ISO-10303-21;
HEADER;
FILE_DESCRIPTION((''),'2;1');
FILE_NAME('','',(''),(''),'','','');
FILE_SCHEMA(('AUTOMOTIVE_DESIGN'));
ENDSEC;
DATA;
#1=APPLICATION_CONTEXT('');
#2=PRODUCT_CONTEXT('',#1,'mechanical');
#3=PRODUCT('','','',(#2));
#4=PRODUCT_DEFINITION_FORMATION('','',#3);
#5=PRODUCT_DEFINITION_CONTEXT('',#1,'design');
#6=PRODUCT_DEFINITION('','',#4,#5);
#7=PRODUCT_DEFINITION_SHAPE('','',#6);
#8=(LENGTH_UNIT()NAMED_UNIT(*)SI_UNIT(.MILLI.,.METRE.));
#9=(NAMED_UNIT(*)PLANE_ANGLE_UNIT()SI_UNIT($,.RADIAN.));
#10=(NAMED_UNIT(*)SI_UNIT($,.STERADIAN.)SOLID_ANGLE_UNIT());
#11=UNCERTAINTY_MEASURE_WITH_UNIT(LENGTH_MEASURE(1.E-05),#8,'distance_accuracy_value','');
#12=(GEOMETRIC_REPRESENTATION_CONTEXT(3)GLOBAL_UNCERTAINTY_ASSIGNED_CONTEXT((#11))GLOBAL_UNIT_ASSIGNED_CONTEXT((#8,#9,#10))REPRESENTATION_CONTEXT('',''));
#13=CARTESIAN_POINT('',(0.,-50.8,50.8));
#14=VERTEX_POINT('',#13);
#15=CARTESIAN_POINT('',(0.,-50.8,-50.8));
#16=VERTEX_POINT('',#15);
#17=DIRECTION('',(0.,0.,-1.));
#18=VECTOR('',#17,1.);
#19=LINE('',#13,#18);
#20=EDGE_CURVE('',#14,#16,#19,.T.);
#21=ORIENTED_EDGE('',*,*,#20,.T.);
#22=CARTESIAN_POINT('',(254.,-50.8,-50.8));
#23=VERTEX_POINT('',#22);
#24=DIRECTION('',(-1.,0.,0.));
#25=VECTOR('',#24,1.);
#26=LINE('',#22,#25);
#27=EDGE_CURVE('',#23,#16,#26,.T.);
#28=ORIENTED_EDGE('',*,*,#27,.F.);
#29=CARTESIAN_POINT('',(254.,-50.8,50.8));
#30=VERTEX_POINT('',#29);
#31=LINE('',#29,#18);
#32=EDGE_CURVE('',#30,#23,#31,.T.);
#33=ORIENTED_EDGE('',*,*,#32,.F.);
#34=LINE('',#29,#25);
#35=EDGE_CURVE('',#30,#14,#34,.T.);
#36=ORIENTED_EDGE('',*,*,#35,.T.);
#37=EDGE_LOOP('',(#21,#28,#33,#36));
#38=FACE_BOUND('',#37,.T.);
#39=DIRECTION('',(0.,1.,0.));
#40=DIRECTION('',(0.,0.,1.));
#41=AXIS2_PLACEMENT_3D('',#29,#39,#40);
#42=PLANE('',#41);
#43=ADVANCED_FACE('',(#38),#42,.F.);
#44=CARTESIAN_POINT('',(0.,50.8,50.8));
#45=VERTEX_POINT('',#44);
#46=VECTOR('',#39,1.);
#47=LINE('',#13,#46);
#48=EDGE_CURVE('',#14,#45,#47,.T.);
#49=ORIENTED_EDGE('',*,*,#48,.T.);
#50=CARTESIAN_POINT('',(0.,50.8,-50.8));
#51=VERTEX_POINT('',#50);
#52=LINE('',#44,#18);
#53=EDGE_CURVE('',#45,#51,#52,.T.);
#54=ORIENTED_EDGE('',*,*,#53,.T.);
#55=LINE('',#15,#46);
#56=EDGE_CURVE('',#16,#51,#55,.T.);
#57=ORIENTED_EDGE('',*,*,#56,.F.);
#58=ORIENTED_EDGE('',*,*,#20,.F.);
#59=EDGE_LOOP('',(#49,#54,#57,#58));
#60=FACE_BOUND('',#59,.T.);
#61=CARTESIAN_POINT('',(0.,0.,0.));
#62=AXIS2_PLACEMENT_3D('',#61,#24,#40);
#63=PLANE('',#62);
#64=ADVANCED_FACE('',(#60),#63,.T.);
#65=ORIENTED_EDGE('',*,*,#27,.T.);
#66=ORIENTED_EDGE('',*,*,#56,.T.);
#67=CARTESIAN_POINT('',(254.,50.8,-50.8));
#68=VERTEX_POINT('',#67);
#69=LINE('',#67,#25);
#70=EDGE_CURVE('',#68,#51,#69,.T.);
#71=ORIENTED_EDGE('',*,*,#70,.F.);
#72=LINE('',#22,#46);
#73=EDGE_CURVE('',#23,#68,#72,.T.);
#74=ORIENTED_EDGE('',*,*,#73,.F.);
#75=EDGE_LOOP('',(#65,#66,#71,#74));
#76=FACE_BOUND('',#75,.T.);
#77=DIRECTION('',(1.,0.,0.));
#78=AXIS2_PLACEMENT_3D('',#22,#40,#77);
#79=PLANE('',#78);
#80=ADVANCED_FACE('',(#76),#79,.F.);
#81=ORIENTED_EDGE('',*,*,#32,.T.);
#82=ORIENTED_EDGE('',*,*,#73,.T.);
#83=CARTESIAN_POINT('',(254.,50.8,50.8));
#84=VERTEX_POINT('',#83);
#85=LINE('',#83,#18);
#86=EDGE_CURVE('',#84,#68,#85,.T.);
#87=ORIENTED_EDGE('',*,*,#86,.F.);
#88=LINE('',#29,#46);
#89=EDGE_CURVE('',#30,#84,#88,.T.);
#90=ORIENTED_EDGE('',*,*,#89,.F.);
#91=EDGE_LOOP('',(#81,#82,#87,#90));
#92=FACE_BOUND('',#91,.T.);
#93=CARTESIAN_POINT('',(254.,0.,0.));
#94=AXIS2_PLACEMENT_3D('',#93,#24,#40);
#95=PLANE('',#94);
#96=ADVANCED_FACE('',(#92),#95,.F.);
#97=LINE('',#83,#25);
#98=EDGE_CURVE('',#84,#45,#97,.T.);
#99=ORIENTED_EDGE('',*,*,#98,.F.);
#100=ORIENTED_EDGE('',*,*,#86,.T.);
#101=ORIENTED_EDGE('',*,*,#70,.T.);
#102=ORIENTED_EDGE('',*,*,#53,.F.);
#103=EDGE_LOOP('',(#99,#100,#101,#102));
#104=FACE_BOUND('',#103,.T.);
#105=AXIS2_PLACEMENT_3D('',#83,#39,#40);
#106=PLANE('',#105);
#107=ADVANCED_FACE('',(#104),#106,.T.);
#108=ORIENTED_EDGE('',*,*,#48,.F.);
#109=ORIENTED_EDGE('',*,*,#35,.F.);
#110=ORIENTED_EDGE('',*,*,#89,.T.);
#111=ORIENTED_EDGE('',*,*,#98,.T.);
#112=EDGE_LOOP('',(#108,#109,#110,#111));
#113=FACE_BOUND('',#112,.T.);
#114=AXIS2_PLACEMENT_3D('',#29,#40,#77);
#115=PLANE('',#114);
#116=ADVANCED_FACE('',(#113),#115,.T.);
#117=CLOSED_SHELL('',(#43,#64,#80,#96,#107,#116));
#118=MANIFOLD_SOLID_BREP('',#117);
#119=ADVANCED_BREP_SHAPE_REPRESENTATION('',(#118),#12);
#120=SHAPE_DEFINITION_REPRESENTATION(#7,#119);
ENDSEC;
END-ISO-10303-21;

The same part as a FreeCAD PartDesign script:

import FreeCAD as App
import Part
import Sketcher

V = App.Vector
Q = App.Units.Quantity

doc = App.newDocument("Part")
body = doc.addObject("PartDesign::Body", "Body")

# Sketch on YZ plane
sketch1 = body.newObject("Sketcher::SketchObject", "Sketch")
sketch1.AttachmentSupport = (doc.getObject("YZ_Plane"), [""])
sketch1.MapMode = "FlatFace"
sketch1.addGeometry(Part.LineSegment(V(51, 51, 0), V(-51, 51, 0)), False)
sketch1.addGeometry(Part.LineSegment(V(-51, 51, 0), V(-51, -51, 0)), False)
sketch1.addGeometry(Part.LineSegment(V(-51, -51, 0), V(51, -51, 0)), False)
sketch1.addGeometry(Part.LineSegment(V(51, -51, 0), V(51, 51, 0)), False)
sketch1.addConstraint(Sketcher.Constraint("Coincident", 0, 2, 1, 1))
sketch1.addConstraint(Sketcher.Constraint("Coincident", 1, 2, 2, 1))
sketch1.addConstraint(Sketcher.Constraint("Coincident", 2, 2, 3, 1))
sketch1.addConstraint(Sketcher.Constraint("Coincident", 3, 2, 0, 1))
sketch1.addConstraint(Sketcher.Constraint("Horizontal", 0))
sketch1.addConstraint(Sketcher.Constraint("Vertical", 1))
sketch1.addConstraint(Sketcher.Constraint("Horizontal", 2))
sketch1.addConstraint(Sketcher.Constraint("Vertical", 3))
sketch1.addConstraint(Sketcher.Constraint("Symmetric", 0, 2, 2, 2, -1, 1))
sketch1.addConstraint(Sketcher.Constraint("Equal", 2, 1))
sketch1.addConstraint(Sketcher.Constraint("DistanceX", 0, 2, 0, 1, Q("4 in")))
pad1 = body.newObject("PartDesign::Pad", "Pad")
pad1.Profile = sketch1
pad1.Length = Q("10 in")

doc.recompute()
